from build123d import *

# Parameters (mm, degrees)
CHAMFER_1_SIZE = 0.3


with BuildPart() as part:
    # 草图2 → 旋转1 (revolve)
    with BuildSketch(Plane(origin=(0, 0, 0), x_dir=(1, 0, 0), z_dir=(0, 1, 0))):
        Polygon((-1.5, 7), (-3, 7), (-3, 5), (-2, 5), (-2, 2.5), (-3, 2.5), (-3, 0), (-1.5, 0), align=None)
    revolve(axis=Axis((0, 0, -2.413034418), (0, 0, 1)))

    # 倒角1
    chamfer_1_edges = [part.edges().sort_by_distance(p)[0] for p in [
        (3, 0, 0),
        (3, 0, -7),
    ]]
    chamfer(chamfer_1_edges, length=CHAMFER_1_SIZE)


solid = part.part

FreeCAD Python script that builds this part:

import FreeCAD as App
import Part
import Sketcher
from FreeCAD import Vector


def edges_at(feature, points):
    """Names of the edges that pass closest to the given points."""
    edges = feature.Shape.Edges
    near = lambda p: min(range(len(edges)), key=lambda i: edges[i].distToShape(Part.Vertex(*p))[0])
    return sorted({f"Edge{near(p) + 1}" for p in points})


def add_polygon(sketch, points):
    """Adds a closed chain of lines whose ends are joined by coincident constraints."""
    first, n = sketch.GeometryCount, len(points)
    for a, b in zip(points, points[1:] + points[:1]):
        sketch.addGeometry(Part.LineSegment(App.Vector(*a, 0), App.Vector(*b, 0)), False)
    for i in range(n):
        sketch.addConstraint(Sketcher.Constraint("Coincident", first + i, 2, first + (i + 1) % n, 1))

doc = App.newDocument("Part")
body = doc.addObject("PartDesign::Body", "Body")

sketch1 = doc.addObject("Sketcher::SketchObject", "Sketch")
body.addObject(sketch1)
sketch1.AttachmentSupport = (doc.XZ_Plane, [""])
sketch1.MapMode = "FlatFace"
add_polygon(sketch1, [(-1.5, -7), (-3, -7), (-3, -5), (-2, -5), (-2, -2.5), (-3, -2.5), (-3, 0), (-1.5, 0)])
sketch1.addConstraint([
    Sketcher.Constraint("Horizontal", 0),
    Sketcher.Constraint("Vertical", 1),
    Sketcher.Constraint("Horizontal", 2),
    Sketcher.Constraint("Vertical", 3),
    Sketcher.Constraint("Horizontal", 4),
    Sketcher.Constraint("Vertical", 5),
    Sketcher.Constraint("Horizontal", 6),
    Sketcher.Constraint("Vertical", 7),
    Sketcher.Constraint("PointOnObject", 5, 2, -1),
    Sketcher.Constraint("Vertical", 1, 2, 4, 2),
    Sketcher.Constraint("Equal", 3, 5),
    Sketcher.Constraint("DistanceX", 2, 1, 2, 2, 1.0),
    Sketcher.Constraint("DistanceY", 1, 1, 1, 2, 2.0),
    Sketcher.Constraint("DistanceY", 7, 2, 7, 1, 7.0),
    Sketcher.Constraint("DistanceX", 0, 2, 0, 1, 1.5),
    Sketcher.Constraint("DistanceX", 0, 2, -1, 1, 3.0),
])
revolution = doc.addObject("PartDesign::Revolution", "Revolution")
body.addObject(revolution)
revolution.Profile = sketch1
revolution.ReferenceAxis = (sketch1, ["V_Axis"])
revolution.Angle = 360
doc.recompute()

chamfer = doc.addObject("PartDesign::Chamfer", "Chamfer")
body.addObject(chamfer)
chamfer.Base = (revolution, edges_at(revolution, [(3, 0, 0), (3, 0, -7)]))
chamfer.Size = 0.3

doc.recompute()
